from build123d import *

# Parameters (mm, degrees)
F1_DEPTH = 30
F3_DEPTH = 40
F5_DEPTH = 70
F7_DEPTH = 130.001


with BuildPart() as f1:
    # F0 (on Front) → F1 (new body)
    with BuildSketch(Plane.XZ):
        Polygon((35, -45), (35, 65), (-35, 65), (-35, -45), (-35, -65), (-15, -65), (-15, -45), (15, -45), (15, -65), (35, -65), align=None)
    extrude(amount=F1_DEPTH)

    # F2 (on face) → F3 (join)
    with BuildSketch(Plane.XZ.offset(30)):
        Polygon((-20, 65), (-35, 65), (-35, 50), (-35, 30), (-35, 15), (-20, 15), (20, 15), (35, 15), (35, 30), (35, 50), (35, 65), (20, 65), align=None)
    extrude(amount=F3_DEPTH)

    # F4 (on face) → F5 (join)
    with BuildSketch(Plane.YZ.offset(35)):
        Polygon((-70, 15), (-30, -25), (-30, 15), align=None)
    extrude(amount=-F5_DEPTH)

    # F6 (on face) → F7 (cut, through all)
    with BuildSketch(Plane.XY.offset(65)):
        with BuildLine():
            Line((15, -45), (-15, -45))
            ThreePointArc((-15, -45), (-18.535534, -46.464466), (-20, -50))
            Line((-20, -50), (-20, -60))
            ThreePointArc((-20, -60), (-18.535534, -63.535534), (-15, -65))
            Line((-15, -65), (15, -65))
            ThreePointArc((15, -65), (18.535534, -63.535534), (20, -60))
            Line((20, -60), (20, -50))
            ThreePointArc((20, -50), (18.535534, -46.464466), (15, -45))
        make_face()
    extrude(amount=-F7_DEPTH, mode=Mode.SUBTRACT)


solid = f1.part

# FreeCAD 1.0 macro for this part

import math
import FreeCAD as App
import Part
import Sketcher


def add_polygon(sketch, points):
    """Adds a closed chain of lines whose ends are joined by coincident constraints."""
    first, n = sketch.GeometryCount, len(points)
    for a, b in zip(points, points[1:] + points[:1]):
        sketch.addGeometry(Part.LineSegment(App.Vector(*a, 0), App.Vector(*b, 0)), False)
    for i in range(n):
        sketch.addConstraint(Sketcher.Constraint("Coincident", first + i, 2, first + (i + 1) % n, 1))

doc = App.newDocument("Part")
body = doc.addObject("PartDesign::Body", "Body")

# Sketch on XZ plane
sketch1 = body.newObject("Sketcher::SketchObject", "Sketch")
sketch1.AttachmentSupport = (doc.getObject("XZ_Plane"), [""])
sketch1.MapMode = "FlatFace"
add_polygon(sketch1, [(35, 65), (-35, 65), (-35, -65), (-15, -65), (-15, -45), (15, -45), (15, -65), (35, -65)])  # lines 0-7
sketch1.addConstraint([
    Sketcher.Constraint("Horizontal", 0),
    Sketcher.Constraint("Vertical", 1),
    Sketcher.Constraint("Horizontal", 2),
    Sketcher.Constraint("Vertical", 3),
    Sketcher.Constraint("Horizontal", 4),
    Sketcher.Constraint("Vertical", 5),
    Sketcher.Constraint("Horizontal", 6),
    Sketcher.Constraint("Vertical", 7),
    Sketcher.Constraint("Symmetric", 0, 2, 6, 2, -1, 1),
    Sketcher.Constraint("Symmetric", 2, 2, 5, 2, -2),
    Sketcher.Constraint("Equal", 6, 3),
    Sketcher.Constraint("DistanceX", 0, 2, 0, 1, 70.0),
    Sketcher.Constraint("DistanceX", 2, 1, 2, 2, 20.0),
    Sketcher.Constraint("DistanceY", 1, 2, 1, 1, 130.0),
])
pad1 = body.newObject("PartDesign::Pad", "Pad")
pad1.Profile = sketch1
pad1.Length = 30

# Sketch on XZ plane
sketch2 = body.newObject("Sketcher::SketchObject", "Sketch001")
sketch2.AttachmentSupport = (doc.getObject("XZ_Plane"), [""])
sketch2.MapMode = "FlatFace"
sketch2.AttachmentOffset = App.Placement(App.Vector(0, 0, 30), App.Rotation())
add_polygon(sketch2, [(-35, 65), (-35, 15), (35, 15), (35, 65)])  # lines 0-3
sketch2.addConstraint([
    Sketcher.Constraint("Vertical", 0),
    Sketcher.Constraint("Horizontal", 1),
    Sketcher.Constraint("Vertical", 2),
    Sketcher.Constraint("Horizontal", 3),
    Sketcher.Constraint("DistanceX", 1, 1, 1, 2, 70.0),
    Sketcher.Constraint("DistanceY", 0, 2, 0, 1, 50.0),
    Sketcher.Constraint("DistanceX", 0, 2, -1, 1, 35.0),
    Sketcher.Constraint("DistanceY", -1, 1, 0, 2, 15.0),
])
pad2 = body.newObject("PartDesign::Pad", "Pad001")
pad2.Profile = sketch2
pad2.Length = 40

# Sketch on YZ plane
sketch3 = body.newObject("Sketcher::SketchObject", "Sketch002")
sketch3.AttachmentSupport = (doc.getObject("YZ_Plane"), [""])
sketch3.MapMode = "FlatFace"
sketch3.AttachmentOffset = App.Placement(App.Vector(0, 0, 35), App.Rotation())
add_polygon(sketch3, [(-70, 15), (-30, -25), (-30, 15)])  # lines 0-2
sketch3.addConstraint([
    Sketcher.Constraint("Vertical", 1),
    Sketcher.Constraint("Horizontal", 2),
    Sketcher.Constraint("Equal", 2, 1),
    Sketcher.Constraint("DistanceX", 2, 2, 2, 1, 40.0),
    Sketcher.Constraint("DistanceX", 0, 2, -1, 1, 30.0),
    Sketcher.Constraint("DistanceY", 0, 2, -1, 1, 25.0),
])
pad3 = body.newObject("PartDesign::Pad", "Pad002")
pad3.Profile = sketch3
pad3.Length = 70
pad3.Reversed = True

# Sketch on XY plane
sketch4 = body.newObject("Sketcher::SketchObject", "Sketch003")
sketch4.AttachmentSupport = (doc.getObject("XY_Plane"), [""])
sketch4.MapMode = "FlatFace"
sketch4.AttachmentOffset = App.Placement(App.Vector(0, 0, 65), App.Rotation())
sketch4.addGeometry([
    Part.LineSegment(App.Vector(15, -45, 0), App.Vector(-15, -45, 0)),  # 0
    Part.ArcOfCircle(Part.Circle(App.Vector(-15, -50, 0), App.Vector(0, 0, 1), 5), math.radians(90), math.radians(180)),  # 1
    Part.LineSegment(App.Vector(-20, -50, 0), App.Vector(-20, -60, 0)),  # 2
    Part.ArcOfCircle(Part.Circle(App.Vector(-15, -60, 0), App.Vector(0, 0, 1), 5), math.radians(180), math.radians(270)),  # 3
    Part.LineSegment(App.Vector(-15, -65, 0), App.Vector(15, -65, 0)),  # 4
    Part.ArcOfCircle(Part.Circle(App.Vector(15, -60, 0), App.Vector(0, 0, 1), 5), math.radians(-90), math.radians(0)),  # 5
    Part.LineSegment(App.Vector(20, -60, 0), App.Vector(20, -50, 0)),  # 6
    Part.ArcOfCircle(Part.Circle(App.Vector(15, -50, 0), App.Vector(0, 0, 1), 5), math.radians(0), math.radians(90)),  # 7
], False)
sketch4.addConstraint([
    Sketcher.Constraint("Tangent", 0, 2, 1, 1),
    Sketcher.Constraint("Tangent", 1, 2, 2, 1),
    Sketcher.Constraint("Tangent", 2, 2, 3, 1),
    Sketcher.Constraint("Tangent", 3, 2, 4, 1),
    Sketcher.Constraint("Tangent", 4, 2, 5, 1),
    Sketcher.Constraint("Tangent", 5, 2, 6, 1),
    Sketcher.Constraint("Tangent", 6, 2, 7, 1),
    Sketcher.Constraint("Tangent", 7, 2, 0, 1),
    Sketcher.Constraint("Horizontal", 0),
    Sketcher.Constraint("Vertical", 2),
    Sketcher.Constraint("Horizontal", 4),
    Sketcher.Constraint("Vertical", 6),
    Sketcher.Constraint("Equal", 1, 3),
    Sketcher.Constraint("Equal", 3, 5),
    Sketcher.Constraint("Equal", 5, 7),
    Sketcher.Constraint("Radius", 1, 5.0),
    Sketcher.Constraint("DistanceX", 0, 2, 0, 1, 30.0),
    Sketcher.Constraint("DistanceY", 2, 2, 2, 1, 10.0),
    Sketcher.Constraint("DistanceX", 1, 3, -1, 1, 15.0),
    Sketcher.Constraint("DistanceY", 1, 3, -1, 1, 50.0),
])
pocket1 = body.newObject("PartDesign::Pocket", "Pocket")
pocket1.Profile = sketch4
pocket1.Type = "ThroughAll"

doc.recompute()
